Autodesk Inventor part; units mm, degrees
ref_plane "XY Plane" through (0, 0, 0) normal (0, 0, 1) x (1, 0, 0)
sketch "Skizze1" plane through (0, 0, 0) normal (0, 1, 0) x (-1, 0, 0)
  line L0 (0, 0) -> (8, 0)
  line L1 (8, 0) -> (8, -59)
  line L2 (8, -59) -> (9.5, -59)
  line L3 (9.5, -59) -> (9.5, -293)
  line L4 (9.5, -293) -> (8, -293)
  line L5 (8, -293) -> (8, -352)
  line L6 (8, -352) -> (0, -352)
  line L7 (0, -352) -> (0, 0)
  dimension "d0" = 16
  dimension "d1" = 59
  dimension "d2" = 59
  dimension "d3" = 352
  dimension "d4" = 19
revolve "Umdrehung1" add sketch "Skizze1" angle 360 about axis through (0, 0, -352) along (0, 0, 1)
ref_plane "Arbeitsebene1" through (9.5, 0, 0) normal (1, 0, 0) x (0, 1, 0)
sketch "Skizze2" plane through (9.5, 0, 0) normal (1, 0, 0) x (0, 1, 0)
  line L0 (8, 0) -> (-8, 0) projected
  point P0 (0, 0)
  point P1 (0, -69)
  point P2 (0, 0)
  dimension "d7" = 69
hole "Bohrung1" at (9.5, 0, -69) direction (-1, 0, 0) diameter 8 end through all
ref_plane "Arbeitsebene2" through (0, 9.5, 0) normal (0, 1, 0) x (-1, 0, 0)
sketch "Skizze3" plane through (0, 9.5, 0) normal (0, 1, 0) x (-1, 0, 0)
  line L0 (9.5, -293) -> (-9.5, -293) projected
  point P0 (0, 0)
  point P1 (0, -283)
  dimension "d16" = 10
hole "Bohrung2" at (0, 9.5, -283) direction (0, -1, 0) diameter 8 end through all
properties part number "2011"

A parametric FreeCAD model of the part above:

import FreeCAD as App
import Part
import Sketcher
Q = App.Units.Quantity

doc = App.newDocument("Part")
body = doc.addObject("PartDesign::Body", "Body")

sketch1 = doc.addObject("Sketcher::SketchObject", "Sketch")
body.addObject(sketch1)
sketch1.AttachmentSupport = (doc.XZ_Plane, [""])
sketch1.MapMode = "FlatFace"
sketch1.addGeometry([
    Part.LineSegment(App.Vector(-8, 0, 0), App.Vector(0, 0, 0)),
    Part.LineSegment(App.Vector(0, 0, 0), App.Vector(0, -352, 0)),
    Part.LineSegment(App.Vector(0, -352, 0), App.Vector(-8, -352, 0)),
    Part.LineSegment(App.Vector(-8, -352, 0), App.Vector(-8, -293, 0)),
    Part.LineSegment(App.Vector(-8, -293, 0), App.Vector(-9.5, -293, 0)),
    Part.LineSegment(App.Vector(-9.5, -293, 0), App.Vector(-9.5, -59, 0)),
    Part.LineSegment(App.Vector(-9.5, -59, 0), App.Vector(-8, -59, 0)),
    Part.LineSegment(App.Vector(-8, -59, 0), App.Vector(-8, 0, 0)),
], False)
sketch1.addConstraint([
    Sketcher.Constraint("Coincident", 0, 2, 1, 1),
    Sketcher.Constraint("Coincident", 1, 2, 2, 1),
    Sketcher.Constraint("Coincident", 2, 2, 3, 1),
    Sketcher.Constraint("Coincident", 3, 2, 4, 1),
    Sketcher.Constraint("Coincident", 4, 2, 5, 1),
    Sketcher.Constraint("Coincident", 5, 2, 6, 1),
    Sketcher.Constraint("Coincident", 6, 2, 7, 1),
    Sketcher.Constraint("Coincident", 7, 2, 0, 1),
    Sketcher.Constraint("Horizontal", 0),
    Sketcher.Constraint("Vertical", 1),
    Sketcher.Constraint("Horizontal", 2),
    Sketcher.Constraint("Vertical", 3),
    Sketcher.Constraint("Horizontal", 4),
    Sketcher.Constraint("Vertical", 5),
    Sketcher.Constraint("Horizontal", 6),
    Sketcher.Constraint("Vertical", 7),
    Sketcher.Constraint("Coincident", 0, 2, -1, 1),
    Sketcher.Constraint("Vertical", 3, 2, 6, 2),
    Sketcher.Constraint("Equal", 3, 7),
    Sketcher.Constraint("DistanceY", 1, 2, 1, 1, Q("352 mm")),
    Sketcher.Constraint("DistanceY", 3, 1, 3, 2, Q("59 mm")),
    Sketcher.Constraint("DistanceX", 0, 1, 0, 2, Q("8 mm")),
    Sketcher.Constraint("DistanceX", 4, 2, 4, 1, Q("1.5 mm")),
])
revolution = doc.addObject("PartDesign::Revolution", "Revolution")
body.addObject(revolution)
revolution.Profile = sketch1
revolution.ReferenceAxis = (sketch1, ["V_Axis"])
revolution.Angle = 360

sketch2 = doc.addObject("Sketcher::SketchObject", "Sketch001")
body.addObject(sketch2)
sketch2.AttachmentSupport = (doc.YZ_Plane, [""])
sketch2.MapMode = "FlatFace"
sketch2.AttachmentOffset = App.Placement(App.Vector(0, 0, 9.5), App.Rotation())
sketch2.addGeometry(Part.Circle(App.Vector(0, -69, 0), App.Vector(0, 0, 1), 4), False)
sketch2.addConstraint([
    Sketcher.Constraint("PointOnObject", 0, 3, -2),
    Sketcher.Constraint("Diameter", 0, Q("8 mm")),
    Sketcher.Constraint("DistanceY", 0, 3, -1, 1, Q("69 mm")),
])
doc.recompute()
hole = doc.addObject("PartDesign::Hole", "Hole")
body.addObject(hole)
hole.Profile = sketch2
hole.ThreadType = "None"
hole.Diameter = 8
hole.DepthType = "ThroughAll"

sketch3 = doc.addObject("Sketcher::SketchObject", "Sketch002")
body.addObject(sketch3)
sketch3.AttachmentSupport = (doc.XZ_Plane, [""])
sketch3.MapMode = "FlatFace"
sketch3.AttachmentOffset = App.Placement(App.Vector(0, 0, -9.5), App.Rotation())
sketch3.addGeometry(Part.Circle(App.Vector(0, -283, 0), App.Vector(0, 0, 1), 4), False)
sketch3.addConstraint([
    Sketcher.Constraint("PointOnObject", 0, 3, -2),
    Sketcher.Constraint("Diameter", 0, Q("8 mm")),
    Sketcher.Constraint("DistanceY", 0, 3, -1, 1, Q("283 mm")),
])
doc.recompute()
hole2 = doc.addObject("PartDesign::Hole", "Hole001")
body.addObject(hole2)
hole2.Profile = sketch3
hole2.ThreadType = "None"
hole2.Diameter = 8
hole2.DepthType = "ThroughAll"
hole2.Reversed = True

doc.recompute()
